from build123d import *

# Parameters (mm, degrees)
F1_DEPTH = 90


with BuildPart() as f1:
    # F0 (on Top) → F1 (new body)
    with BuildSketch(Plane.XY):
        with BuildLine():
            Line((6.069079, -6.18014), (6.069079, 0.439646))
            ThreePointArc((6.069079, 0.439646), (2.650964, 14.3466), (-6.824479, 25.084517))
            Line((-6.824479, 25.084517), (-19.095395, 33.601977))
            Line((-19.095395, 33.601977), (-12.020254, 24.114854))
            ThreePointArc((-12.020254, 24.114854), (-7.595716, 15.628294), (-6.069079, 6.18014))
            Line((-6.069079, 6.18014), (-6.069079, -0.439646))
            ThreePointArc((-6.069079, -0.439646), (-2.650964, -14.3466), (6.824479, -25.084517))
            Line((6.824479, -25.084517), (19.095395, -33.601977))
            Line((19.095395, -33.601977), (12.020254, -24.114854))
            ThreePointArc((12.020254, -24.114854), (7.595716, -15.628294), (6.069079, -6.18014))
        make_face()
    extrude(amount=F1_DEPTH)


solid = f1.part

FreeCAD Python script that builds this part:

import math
import FreeCAD as App
import Part
import Sketcher

V = App.Vector
Q = App.Units.Quantity

doc = App.newDocument("Part")
params = doc.addObject("Spreadsheet::Sheet", "Params")
for row, (alias, value) in enumerate([
    ("pad1_length", "90 mm"),
], start=1):
    params.set(f"A{row}", alias)
    params.set(f"B{row}", "=" + value)
    params.setAlias(f"B{row}", alias)

body = doc.addObject("PartDesign::Body", "Body")

# Sketch on XY plane
sketch1 = body.newObject("Sketcher::SketchObject", "Sketch")
sketch1.AttachmentSupport = (doc.getObject("XY_Plane"), [""])
sketch1.MapMode = "FlatFace"
sketch1.addGeometry([
    Part.LineSegment(V(6.069079, -6.18014, 0), V(6.069079, 0.439646, 0)),  # 0
    Part.ArcOfCircle(Part.Circle(V(-23.930925, 0.439644, 0), V(0, 0, 1), 30.000004), math.radians(0.000003), math.radians(55.234794)),  # 1
    Part.LineSegment(V(-6.824479, 25.084517, 0), V(-19.095395, 33.601977, 0)),  # 2
    Part.LineSegment(V(-19.095395, 33.601977, 0), V(-12.020254, 24.114854, 0)),  # 3
    Part.ArcOfCircle(Part.Circle(V(-36.069066, 6.180143, 0), V(0, 0, 1), 29.999987), math.radians(-0.000005), math.radians(36.714209)),  # 4
    Part.LineSegment(V(-6.069079, 6.18014, 0), V(-6.069079, -0.439646, 0)),  # 5
    Part.ArcOfCircle(Part.Circle(V(23.930925, -0.439644, 0), V(0, 0, 1), 30.000004), math.radians(-179.999997), math.radians(-124.765206)),  # 6
    Part.LineSegment(V(6.824479, -25.084517, 0), V(19.095395, -33.601977, 0)),  # 7
    Part.LineSegment(V(19.095395, -33.601977, 0), V(12.020254, -24.114854, 0)),  # 8
    Part.ArcOfCircle(Part.Circle(V(36.069066, -6.180143, 0), V(0, 0, 1), 29.999987), math.radians(179.999995), math.radians(216.714209)),  # 9
], False)
sketch1.addConstraint([
    Sketcher.Constraint("Tangent", 0, 2, 1, 1),
    Sketcher.Constraint("Tangent", 1, 2, 2, 1),
    Sketcher.Constraint("Coincident", 2, 2, 3, 1),
    Sketcher.Constraint("Tangent", 3, 2, 4, 2),
    Sketcher.Constraint("Tangent", 4, 1, 5, 1),
    Sketcher.Constraint("Tangent", 5, 2, 6, 1),
    Sketcher.Constraint("Tangent", 6, 2, 7, 1),
    Sketcher.Constraint("Coincident", 7, 2, 8, 1),
    Sketcher.Constraint("Tangent", 8, 2, 9, 2),
    Sketcher.Constraint("Tangent", 9, 1, 0, 1),
    Sketcher.Constraint("Vertical", 0),
    Sketcher.Constraint("Vertical", 5),
    Sketcher.Constraint("Equal", 1, 6),
    Sketcher.Constraint("Equal", 4, 9),
    Sketcher.Constraint("Symmetric", 1, 3, 6, 3, -1, 1),
    Sketcher.Constraint("Symmetric", 2, 2, 7, 2, -1, 1),
    Sketcher.Constraint("Parallel", 3, 8),
    Sketcher.Constraint("Radius", 1, Q("30.000004 mm")),
    Sketcher.Constraint("Radius", 4, Q("29.999987 mm")),
    Sketcher.Constraint("DistanceY", 1, 3, 4, 3, Q("5.740499 mm")),
    Sketcher.Constraint("DistanceX", 1, 2, 4, 1, Q("0.7554 mm")),
    Sketcher.Constraint("DistanceY", 5, 2, 3, 2, Q("24.5545 mm")),
    Sketcher.Constraint("DistanceY", 0, 1, 0, 2, Q("6.619786 mm")),
    Sketcher.Constraint("DistanceX", -1, 1, 0, 2, Q("6.069079 mm")),
])
pad1 = body.newObject("PartDesign::Pad", "Pad")
pad1.Profile = sketch1
pad1.setExpression("Length", "Params.pad1_length")

doc.recompute()
